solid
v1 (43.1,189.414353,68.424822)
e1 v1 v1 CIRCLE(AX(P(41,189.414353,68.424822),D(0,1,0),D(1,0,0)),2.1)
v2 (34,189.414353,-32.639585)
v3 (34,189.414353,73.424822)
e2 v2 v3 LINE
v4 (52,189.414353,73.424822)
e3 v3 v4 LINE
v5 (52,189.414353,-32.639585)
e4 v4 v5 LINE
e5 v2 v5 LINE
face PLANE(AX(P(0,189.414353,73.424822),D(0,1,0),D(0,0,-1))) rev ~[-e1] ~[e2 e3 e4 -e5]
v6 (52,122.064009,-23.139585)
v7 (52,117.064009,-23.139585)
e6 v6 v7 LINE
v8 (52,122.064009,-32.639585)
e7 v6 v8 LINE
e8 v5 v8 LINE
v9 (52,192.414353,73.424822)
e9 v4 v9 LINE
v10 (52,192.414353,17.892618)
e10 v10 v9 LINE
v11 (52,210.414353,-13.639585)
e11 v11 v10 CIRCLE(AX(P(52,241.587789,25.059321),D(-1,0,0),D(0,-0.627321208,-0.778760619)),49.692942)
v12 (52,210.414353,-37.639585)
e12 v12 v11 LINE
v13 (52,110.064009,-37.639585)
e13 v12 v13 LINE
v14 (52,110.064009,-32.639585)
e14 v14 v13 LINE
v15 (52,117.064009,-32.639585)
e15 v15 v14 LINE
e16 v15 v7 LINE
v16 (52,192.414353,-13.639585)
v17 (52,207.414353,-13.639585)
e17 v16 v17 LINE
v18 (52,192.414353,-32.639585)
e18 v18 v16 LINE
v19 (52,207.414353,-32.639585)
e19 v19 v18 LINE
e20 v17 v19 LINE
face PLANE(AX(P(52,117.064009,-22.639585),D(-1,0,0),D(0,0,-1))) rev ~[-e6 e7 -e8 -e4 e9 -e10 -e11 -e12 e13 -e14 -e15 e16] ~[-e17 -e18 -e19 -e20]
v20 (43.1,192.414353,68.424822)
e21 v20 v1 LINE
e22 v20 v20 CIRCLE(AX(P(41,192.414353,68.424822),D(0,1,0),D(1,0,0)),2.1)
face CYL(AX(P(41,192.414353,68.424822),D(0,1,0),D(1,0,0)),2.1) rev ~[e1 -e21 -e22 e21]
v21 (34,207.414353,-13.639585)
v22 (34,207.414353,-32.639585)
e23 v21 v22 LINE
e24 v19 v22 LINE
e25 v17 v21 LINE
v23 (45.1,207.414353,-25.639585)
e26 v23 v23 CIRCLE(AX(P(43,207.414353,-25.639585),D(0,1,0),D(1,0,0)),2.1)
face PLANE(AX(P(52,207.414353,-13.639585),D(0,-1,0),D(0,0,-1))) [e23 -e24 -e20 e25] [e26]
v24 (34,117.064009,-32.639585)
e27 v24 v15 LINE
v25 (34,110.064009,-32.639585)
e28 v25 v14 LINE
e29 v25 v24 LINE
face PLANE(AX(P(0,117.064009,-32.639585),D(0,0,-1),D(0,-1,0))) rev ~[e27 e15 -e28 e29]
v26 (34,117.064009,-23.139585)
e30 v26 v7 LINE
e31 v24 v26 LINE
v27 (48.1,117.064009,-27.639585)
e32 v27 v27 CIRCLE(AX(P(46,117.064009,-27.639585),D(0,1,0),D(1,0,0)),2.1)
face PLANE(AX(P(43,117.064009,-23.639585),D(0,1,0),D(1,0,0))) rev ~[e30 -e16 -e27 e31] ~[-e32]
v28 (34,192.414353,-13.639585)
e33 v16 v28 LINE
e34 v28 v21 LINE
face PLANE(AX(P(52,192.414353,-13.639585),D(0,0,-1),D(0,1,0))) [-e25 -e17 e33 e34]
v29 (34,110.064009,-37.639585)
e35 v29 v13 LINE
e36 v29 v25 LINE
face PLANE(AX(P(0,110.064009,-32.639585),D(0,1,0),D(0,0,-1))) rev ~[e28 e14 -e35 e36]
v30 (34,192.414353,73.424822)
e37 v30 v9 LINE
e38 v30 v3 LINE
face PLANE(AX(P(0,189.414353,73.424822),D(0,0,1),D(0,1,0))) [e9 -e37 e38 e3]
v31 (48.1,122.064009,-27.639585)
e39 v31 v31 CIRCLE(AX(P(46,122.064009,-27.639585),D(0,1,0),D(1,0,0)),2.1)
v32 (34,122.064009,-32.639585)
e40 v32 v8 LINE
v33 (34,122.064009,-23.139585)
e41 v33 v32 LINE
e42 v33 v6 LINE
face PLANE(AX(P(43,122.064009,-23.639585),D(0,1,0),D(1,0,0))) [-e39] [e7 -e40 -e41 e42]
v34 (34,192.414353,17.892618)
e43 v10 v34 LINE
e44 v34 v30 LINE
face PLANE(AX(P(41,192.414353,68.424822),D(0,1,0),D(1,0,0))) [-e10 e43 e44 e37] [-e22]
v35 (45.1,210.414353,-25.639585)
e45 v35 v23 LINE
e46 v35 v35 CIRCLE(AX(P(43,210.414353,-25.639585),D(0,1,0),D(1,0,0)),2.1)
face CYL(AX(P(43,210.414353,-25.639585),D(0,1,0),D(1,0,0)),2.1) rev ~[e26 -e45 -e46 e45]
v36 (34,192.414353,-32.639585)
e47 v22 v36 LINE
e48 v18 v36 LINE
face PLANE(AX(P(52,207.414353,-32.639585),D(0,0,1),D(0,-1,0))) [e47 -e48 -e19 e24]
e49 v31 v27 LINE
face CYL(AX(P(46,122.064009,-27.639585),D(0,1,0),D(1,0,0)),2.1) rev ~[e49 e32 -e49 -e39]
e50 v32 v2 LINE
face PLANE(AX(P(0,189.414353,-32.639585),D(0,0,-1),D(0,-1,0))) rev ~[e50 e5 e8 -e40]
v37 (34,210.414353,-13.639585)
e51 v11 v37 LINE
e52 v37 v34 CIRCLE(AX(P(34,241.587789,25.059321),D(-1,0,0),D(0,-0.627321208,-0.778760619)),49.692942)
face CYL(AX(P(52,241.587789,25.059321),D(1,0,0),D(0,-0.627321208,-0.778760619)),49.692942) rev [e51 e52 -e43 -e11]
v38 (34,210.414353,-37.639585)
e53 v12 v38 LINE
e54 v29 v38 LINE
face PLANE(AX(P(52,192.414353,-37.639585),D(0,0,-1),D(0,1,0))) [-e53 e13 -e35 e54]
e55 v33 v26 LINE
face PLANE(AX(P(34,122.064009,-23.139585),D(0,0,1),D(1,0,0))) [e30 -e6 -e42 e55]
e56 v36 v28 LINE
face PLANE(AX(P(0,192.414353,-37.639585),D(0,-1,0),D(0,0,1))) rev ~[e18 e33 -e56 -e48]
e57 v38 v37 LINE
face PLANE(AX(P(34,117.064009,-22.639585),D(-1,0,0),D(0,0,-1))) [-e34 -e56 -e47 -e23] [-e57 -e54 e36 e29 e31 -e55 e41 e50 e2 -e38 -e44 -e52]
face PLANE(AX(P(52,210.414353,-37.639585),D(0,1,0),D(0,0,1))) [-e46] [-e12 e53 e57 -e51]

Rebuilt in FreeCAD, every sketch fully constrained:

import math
import FreeCAD as App
import Part
import Sketcher
from FreeCAD import Vector


def add_polygon(sketch, points):
    """Adds a closed chain of lines whose ends are joined by coincident constraints."""
    first, n = sketch.GeometryCount, len(points)
    for a, b in zip(points, points[1:] + points[:1]):
        sketch.addGeometry(Part.LineSegment(App.Vector(*a, 0), App.Vector(*b, 0)), False)
    for i in range(n):
        sketch.addConstraint(Sketcher.Constraint("Coincident", first + i, 2, first + (i + 1) % n, 1))

doc = App.newDocument("Part")
body = doc.addObject("PartDesign::Body", "Body")
body.AllowCompound = True

# Sketch on YZ plane
sketch1 = body.newObject("Sketcher::SketchObject", "Sketch")
sketch1.AttachmentSupport = (doc.getObject("YZ_Plane"), [""])
sketch1.MapMode = "FlatFace"
add_polygon(sketch1, [(192.414353, 73.424822), (189.414353, 73.424822), (189.414353, -32.639585), (122.064009, -32.639585), (122.064009, -22.639585), (117.064009, -22.639585), (117.064009, -32.639585), (110.064009, -32.639585), (110.064009, -37.639585), (192.414353, -37.639585)])  # lines 0-9
sketch1.addConstraint([
    Sketcher.Constraint("Horizontal", 0),
    Sketcher.Constraint("Vertical", 1),
    Sketcher.Constraint("Horizontal", 2),
    Sketcher.Constraint("Vertical", 3),
    Sketcher.Constraint("Horizontal", 4),
    Sketcher.Constraint("Vertical", 5),
    Sketcher.Constraint("Horizontal", 6),
    Sketcher.Constraint("Vertical", 7),
    Sketcher.Constraint("Horizontal", 8),
    Sketcher.Constraint("Vertical", 9),
    Sketcher.Constraint("Horizontal", 2, 2, 5, 2),
    Sketcher.Constraint("Equal", 4, 7),
    Sketcher.Constraint("DistanceX", 0, 2, 0, 1, 3.0),
    Sketcher.Constraint("DistanceX", 4, 2, 4, 1, 5.0),
    Sketcher.Constraint("DistanceX", 6, 2, 6, 1, 7.0),
    Sketcher.Constraint("DistanceY", 3, 1, 3, 2, 10.0),
    Sketcher.Constraint("DistanceX", 2, 2, 2, 1, 67.350344),
    Sketcher.Constraint("DistanceY", 1, 2, 1, 1, 106.064407),
    Sketcher.Constraint("DistanceY", -1, 1, 0, 2, 73.424822),
    Sketcher.Constraint("DistanceX", -1, 1, 2, 2, 122.064009),
])
pad1 = body.newObject("PartDesign::Pad", "Pad")
pad1.Profile = sketch1
pad1.Length = 52

# Sketch on XZ plane
sketch2 = body.newObject("Sketcher::SketchObject", "Sketch001")
sketch2.AttachmentSupport = (doc.getObject("XZ_Plane"), [""])
sketch2.MapMode = "FlatFace"
sketch2.AttachmentOffset = App.Placement(Vector(0, 0, -122.064009), App.Rotation())
sketch2.addGeometry([
    Part.Circle(Vector(6, -27.049585, 0), Vector(0, 0, 1), 2.1),
    Part.Circle(Vector(46, -27.639585, 0), Vector(0, 0, 1), 2.1),
], False)
sketch2.addConstraint([
    Sketcher.Constraint("Equal", 0, 1),
    Sketcher.Constraint("Diameter", 0, 4.2),
    Sketcher.Constraint("DistanceX", -1, 1, 0, 3, 6.0),
    Sketcher.Constraint("DistanceX", -1, 1, 1, 3, 46.0),
    Sketcher.Constraint("DistanceY", 1, 3, 0, 3, 0.59),
    Sketcher.Constraint("DistanceY", 0, 3, -1, 1, 27.049585),
])
pocket1 = body.newObject("PartDesign::Pocket", "Pocket")
pocket1.Profile = sketch2
pocket1.Length = 52
pocket1.Reversed = True

# Sketch on XZ plane
sketch3 = body.newObject("Sketcher::SketchObject", "Sketch002")
sketch3.AttachmentSupport = (doc.getObject("XZ_Plane"), [""])
sketch3.MapMode = "FlatFace"
sketch3.AttachmentOffset = App.Placement(Vector(0, 0, -192.414353), App.Rotation())
sketch3.addGeometry([
    Part.Circle(Vector(41, 68.424822, 0), Vector(0, 0, 1), 2.1),
    Part.Circle(Vector(11, 68.424822, 0), Vector(0, 0, 1), 2.1),
], False)
sketch3.addConstraint([
    Sketcher.Constraint("Equal", 0, 1),
    Sketcher.Constraint("Horizontal", 0, 3, 1, 3),
    Sketcher.Constraint("Diameter", 0, 4.2),
    Sketcher.Constraint("DistanceX", -1, 1, 0, 3, 41.0),
    Sketcher.Constraint("DistanceX", -1, 1, 1, 3, 11.0),
    Sketcher.Constraint("DistanceY", -1, 1, 0, 3, 68.424822),
])
pocket2 = body.newObject("PartDesign::Pocket", "Pocket001")
pocket2.Profile = sketch3
pocket2.Length = 52
pocket2.Reversed = True

# Sketch on XY plane
sketch4 = body.newObject("Sketcher::SketchObject", "Sketch003")
sketch4.AttachmentSupport = (doc.getObject("XY_Plane"), [""])
sketch4.MapMode = "FlatFace"
sketch4.AttachmentOffset = App.Placement(Vector(0, 0, -37.639585), App.Rotation())
add_polygon(sketch4, [(34, 192.414353), (34, 110.064009), (18, 110.064009), (18, 192.414353)])  # lines 0-3
sketch4.addConstraint([
    Sketcher.Constraint("Vertical", 0),
    Sketcher.Constraint("Horizontal", 1),
    Sketcher.Constraint("Vertical", 2),
    Sketcher.Constraint("Horizontal", 3),
    Sketcher.Constraint("DistanceX", 1, 2, 1, 1, 16.0),
    Sketcher.Constraint("DistanceX", -1, 1, 0, 2, 34.0),
    Sketcher.Constraint("DistanceY", 0, 2, 0, 1, 82.350344),
    Sketcher.Constraint("DistanceY", -1, 1, 0, 2, 110.064009),
])
pocket3 = body.newObject("PartDesign::Pocket", "Pocket002")
pocket3.Profile = sketch4
pocket3.Length = 124
pocket3.Reversed = True

# Sketch on YZ plane
sketch5 = body.newObject("Sketcher::SketchObject", "Sketch004")
sketch5.AttachmentSupport = (doc.getObject("YZ_Plane"), [""])
sketch5.MapMode = "FlatFace"
sketch5.addGeometry([
    Part.LineSegment(Vector(210.414353, -37.639585, 0), Vector(192.414353, -37.639585, 0)),  # 0
    Part.LineSegment(Vector(192.414353, -37.639585, 0), Vector(192.414353, -32.639585, 0)),  # 1
    Part.LineSegment(Vector(192.414353, -32.639585, 0), Vector(207.414353, -32.639585, 0)),  # 2
    Part.LineSegment(Vector(207.414353, -32.639585, 0), Vector(207.414353, -13.639585, 0)),  # 3
    Part.LineSegment(Vector(207.414353, -13.639585, 0), Vector(192.414353, -13.639585, 0)),  # 4
    Part.LineSegment(Vector(192.414353, -13.639585, 0), Vector(192.414353, 17.892618, 0)),  # 5
    Part.ArcOfCircle(Part.Circle(Vector(241.587789, 25.059321, 0), Vector(0, 0, 1), 49.692942), math.radians(-171.707902), math.radians(-128.852761)),  # 6
    Part.LineSegment(Vector(210.414353, -13.639585, 0), Vector(210.414353, -37.639585, 0)),  # 7
], False)
sketch5.addConstraint([
    Sketcher.Constraint("Coincident", 0, 2, 1, 1),
    Sketcher.Constraint("Coincident", 1, 2, 2, 1),
    Sketcher.Constraint("Coincident", 2, 2, 3, 1),
    Sketcher.Constraint("Coincident", 3, 2, 4, 1),
    Sketcher.Constraint("Coincident", 4, 2, 5, 1),
    Sketcher.Constraint("Coincident", 5, 2, 6, 1),
    Sketcher.Constraint("Coincident", 6, 2, 7, 1),
    Sketcher.Constraint("Coincident", 7, 2, 0, 1),
    Sketcher.Constraint("Horizontal", 0),
    Sketcher.Constraint("Vertical", 1),
    Sketcher.Constraint("Horizontal", 2),
    Sketcher.Constraint("Vertical", 3),
    Sketcher.Constraint("Horizontal", 4),
    Sketcher.Constraint("Vertical", 5),
    Sketcher.Constraint("Vertical", 7),
    Sketcher.Constraint("Horizontal", 4, 2, 6, 2),
    Sketcher.Constraint("Vertical", 1, 2, 4, 2),
    Sketcher.Constraint("DistanceX", 0, 2, 0, 1, 18.0),
    Sketcher.Constraint("DistanceX", 2, 1, 2, 2, 15.0),
    Sketcher.Constraint("DistanceY", 1, 1, 1, 2, 5.0),
    Sketcher.Constraint("DistanceY", 3, 1, 3, 2, 19.0),
    Sketcher.Constraint("Radius", 6, 49.692942),
    Sketcher.Constraint("DistanceY", 5, 1, 5, 2, 31.532203),
    Sketcher.Constraint("DistanceX", -1, 1, 6, 3, 241.587789),
    Sketcher.Constraint("DistanceY", -1, 1, 6, 3, 25.059321),
])
pad2 = body.newObject("PartDesign::Pad", "Pad001")
pad2.Profile = sketch5
pad2.Length = 18

# Sketch on XZ plane
sketch6 = body.newObject("Sketcher::SketchObject", "Sketch005")
sketch6.AttachmentSupport = (doc.getObject("XZ_Plane"), [""])
sketch6.MapMode = "FlatFace"
sketch6.AttachmentOffset = App.Placement(Vector(0, 0, -210.414353), App.Rotation())
sketch6.addGeometry(Part.Circle(Vector(9, -25.639585, 0), Vector(0, 0, 1), 2.1), False)
sketch6.addConstraint([
    Sketcher.Constraint("Diameter", 0, 4.2),
    Sketcher.Constraint("DistanceX", -1, 1, 0, 3, 9.0),
    Sketcher.Constraint("DistanceY", 0, 3, -1, 1, 25.639585),
])
pocket4 = body.newObject("PartDesign::Pocket", "Pocket003")
pocket4.Profile = sketch6
pocket4.Length = 6
pocket4.Reversed = True

# Sketch on YZ plane
sketch7 = body.newObject("Sketcher::SketchObject", "Sketch006")
sketch7.AttachmentSupport = (doc.getObject("YZ_Plane"), [""])
sketch7.MapMode = "FlatFace"
sketch7.AttachmentOffset = App.Placement(Vector(0, 0, 52), App.Rotation())
sketch7.addGeometry([
    Part.LineSegment(Vector(192.414353, -32.639585, 0), Vector(192.414353, -37.639585, 0)),  # 0
    Part.LineSegment(Vector(192.414353, -37.639585, 0), Vector(210.414353, -37.639585, 0)),  # 1
    Part.LineSegment(Vector(210.414353, -37.639585, 0), Vector(210.414353, -13.639585, 0)),  # 2
    Part.ArcOfCircle(Part.Circle(Vector(241.587789, 25.059321, 0), Vector(0, 0, 1), 49.692942), math.radians(-171.707902), math.radians(-128.852761)),  # 3
    Part.LineSegment(Vector(192.414353, 17.892618, 0), Vector(192.414353, -13.639585, 0)),  # 4
    Part.LineSegment(Vector(192.414353, -13.639585, 0), Vector(207.414353, -13.639585, 0)),  # 5
    Part.LineSegment(Vector(207.414353, -13.639585, 0), Vector(207.414353, -32.639585, 0)),  # 6
    Part.LineSegment(Vector(207.414353, -32.639585, 0), Vector(192.414353, -32.639585, 0)),  # 7
], False)
sketch7.addConstraint([
    Sketcher.Constraint("Coincident", 0, 2, 1, 1),
    Sketcher.Constraint("Coincident", 1, 2, 2, 1),
    Sketcher.Constraint("Coincident", 2, 2, 3, 2),
    Sketcher.Constraint("Coincident", 3, 1, 4, 1),
    Sketcher.Constraint("Coincident", 4, 2, 5, 1),
    Sketcher.Constraint("Coincident", 5, 2, 6, 1),
    Sketcher.Constraint("Coincident", 6, 2, 7, 1),
    Sketcher.Constraint("Coincident", 7, 2, 0, 1),
    Sketcher.Constraint("Vertical", 0),
    Sketcher.Constraint("Horizontal", 1),
    Sketcher.Constraint("Vertical", 2),
    Sketcher.Constraint("Vertical", 4),
    Sketcher.Constraint("Horizontal", 5),
    Sketcher.Constraint("Vertical", 6),
    Sketcher.Constraint("Horizontal", 7),
    Sketcher.Constraint("Horizontal", 2, 2, 4, 2),
    Sketcher.Constraint("Vertical", 0, 2, 3, 1),
    Sketcher.Constraint("DistanceX", 1, 1, 1, 2, 18.0),
    Sketcher.Constraint("DistanceX", 5, 1, 5, 2, 15.0),
    Sketcher.Constraint("DistanceY", 0, 2, 0, 1, 5.0),
    Sketcher.Constraint("DistanceY", 2, 1, 2, 2, 24.0),
    Sketcher.Constraint("Radius", 3, 49.692942),
    Sketcher.Constraint("DistanceY", 4, 2, 4, 1, 31.532203),
    Sketcher.Constraint("DistanceX", -1, 1, 3, 3, 241.587789),
    Sketcher.Constraint("DistanceY", -1, 1, 3, 3, 25.059321),
])
pad3 = body.newObject("PartDesign::Pad", "Pad002")
pad3.Profile = sketch7
pad3.Length = 18
pad3.Reversed = True

# Sketch on XZ plane
sketch8 = body.newObject("Sketcher::SketchObject", "Sketch007")
sketch8.AttachmentSupport = (doc.getObject("XZ_Plane"), [""])
sketch8.MapMode = "FlatFace"
sketch8.AttachmentOffset = App.Placement(Vector(0, 0, -210.414353), App.Rotation())
sketch8.addGeometry(Part.Circle(Vector(43, -25.639585, 0), Vector(0, 0, 1), 2.1), False)
sketch8.addConstraint([
    Sketcher.Constraint("Diameter", 0, 4.2),
    Sketcher.Constraint("DistanceX", -1, 1, 0, 3, 43.0),
    Sketcher.Constraint("DistanceY", 0, 3, -1, 1, 25.639585),
])
pocket5 = body.newObject("PartDesign::Pocket", "Pocket004")
pocket5.Profile = sketch8
pocket5.Length = 11
pocket5.Reversed = True

# Sketch on XZ plane
sketch9 = body.newObject("Sketcher::SketchObject", "Sketch008")
sketch9.AttachmentSupport = (doc.getObject("XZ_Plane"), [""])
sketch9.MapMode = "FlatFace"
sketch9.AttachmentOffset = App.Placement(Vector(0, 0, -210.414353), App.Rotation())
add_polygon(sketch9, [(-6.236275, -41.730205), (-6.236275, 77.080375), (24.522652, 77.080375), (24.522652, -41.730205)])  # lines 0-3
sketch9.addConstraint([
    Sketcher.Constraint("Vertical", 0),
    Sketcher.Constraint("Horizontal", 1),
    Sketcher.Constraint("Vertical", 2),
    Sketcher.Constraint("Horizontal", 3),
    Sketcher.Constraint("DistanceY", 0, 1, 0, 2, 118.81058),
    Sketcher.Constraint("DistanceX", 1, 1, 1, 2, 30.758927),
    Sketcher.Constraint("DistanceX", -1, 1, 1, 2, 24.522652),
    Sketcher.Constraint("DistanceY", -1, 1, 0, 2, 77.080375),
])
pocket6 = body.newObject("PartDesign::Pocket", "Pocket005")
pocket6.Profile = sketch9
pocket6.Length = 134
pocket6.Reversed = True

# Sketch on XZ plane
sketch10 = body.newObject("Sketcher::SketchObject", "Sketch009")
sketch10.AttachmentSupport = (doc.getObject("XZ_Plane"), [""])
sketch10.MapMode = "FlatFace"
sketch10.AttachmentOffset = App.Placement(Vector(0, 0, -122.064009), App.Rotation())
add_polygon(sketch10, [(34, -24.639585), (34, -22.639585), (52, -22.639585), (52, -24.639585)])  # lines 0-3
sketch10.addConstraint([
    Sketcher.Constraint("Vertical", 0),
    Sketcher.Constraint("Horizontal", 1),
    Sketcher.Constraint("Vertical", 2),
    Sketcher.Constraint("Horizontal", 3),
    Sketcher.Constraint("DistanceX", 1, 1, 1, 2, 18.0),
    Sketcher.Constraint("DistanceY", 0, 1, 0, 2, 2.0),
    Sketcher.Constraint("DistanceX", -1, 1, 0, 2, 34.0),
    Sketcher.Constraint("DistanceY", 0, 2, -1, 1, 22.639585),
])
pocket7 = body.newObject("PartDesign::Pocket", "Pocket006")
pocket7.Profile = sketch10
pocket7.Length = 10
pocket7.Reversed = True

# Sketch on XZ plane
sketch11 = body.newObject("Sketcher::SketchObject", "Sketch010")
sketch11.AttachmentSupport = (doc.getObject("XZ_Plane"), [""])
sketch11.MapMode = "FlatFace"
sketch11.AttachmentOffset = App.Placement(Vector(0, 0, -117.064009), App.Rotation())
add_polygon(sketch11, [(34, -24.639585), (34, -22.639585), (52, -22.639585), (52, -24.639585)])  # lines 0-3
sketch11.addGeometry(Part.Circle(Vector(46, -27.639585, 0), Vector(0, 0, 1), 2.1), False)  # 4
sketch11.addConstraint([
    Sketcher.Constraint("Vertical", 0),
    Sketcher.Constraint("Horizontal", 1),
    Sketcher.Constraint("Vertical", 2),
    Sketcher.Constraint("Horizontal", 3),
    Sketcher.Constraint("Diameter", 4, 4.2),
    Sketcher.Constraint("DistanceX", 1, 1, 1, 2, 18.0),
    Sketcher.Constraint("DistanceY", 0, 1, 0, 2, 2.0),
    Sketcher.Constraint("DistanceX", -1, 1, 4, 3, 46.0),
    Sketcher.Constraint("DistanceX", -1, 1, 0, 2, 34.0),
    Sketcher.Constraint("DistanceY", 4, 3, 0, 2, 5.0),
    Sketcher.Constraint("DistanceY", 4, 3, -1, 1, 27.639585),
])
pad4 = body.newObject("PartDesign::Pad", "Pad003")
pad4.Profile = sketch11
pad4.Length = 5
pad4.Reversed = True

# Sketch on XZ plane
sketch12 = body.newObject("Sketcher::SketchObject", "Sketch011")
sketch12.AttachmentSupport = (doc.getObject("XZ_Plane"), [""])
sketch12.MapMode = "FlatFace"
sketch12.AttachmentOffset = App.Placement(Vector(0, 0, -122.064009), App.Rotation())
sketch12.addGeometry(Part.Circle(Vector(46, -27.639585, 0), Vector(0, 0, 1), 2.1), False)
sketch12.addConstraint([
    Sketcher.Constraint("Diameter", 0, 4.2),
    Sketcher.Constraint("DistanceX", -1, 1, 0, 3, 46.0),
    Sketcher.Constraint("DistanceY", 0, 3, -1, 1, 27.639585),
])
pocket8 = body.newObject("PartDesign::Pocket", "Pocket007")
pocket8.Profile = sketch12
pocket8.Length = 68
pocket8.Reversed = True

# Sketch on XZ plane
sketch13 = body.newObject("Sketcher::SketchObject", "Sketch012")
sketch13.AttachmentSupport = (doc.getObject("XZ_Plane"), [""])
sketch13.MapMode = "FlatFace"
sketch13.AttachmentOffset = App.Placement(Vector(0, 0, -192.414353), App.Rotation())
sketch13.addGeometry(Part.Circle(Vector(41, 68.424822, 0), Vector(0, 0, 1), 2.1), False)
sketch13.addConstraint([
    Sketcher.Constraint("Diameter", 0, 4.2),
    Sketcher.Constraint("DistanceX", -1, 1, 0, 3, 41.0),
    Sketcher.Constraint("DistanceY", -1, 1, 0, 3, 68.424822),
])
pad5 = body.newObject("PartDesign::Pad", "Pad004")
pad5.Profile = sketch13
pad5.Length = 3

# Sketch on XZ plane
sketch14 = body.newObject("Sketcher::SketchObject", "Sketch013")
sketch14.AttachmentSupport = (doc.getObject("XZ_Plane"), [""])
sketch14.MapMode = "FlatFace"
sketch14.AttachmentOffset = App.Placement(Vector(0, 0, -192.414353), App.Rotation())
sketch14.addGeometry(Part.Circle(Vector(41, 68.424822, 0), Vector(0, 0, 1), 2.1), False)
sketch14.addConstraint([
    Sketcher.Constraint("Diameter", 0, 4.2),
    Sketcher.Constraint("DistanceX", -1, 1, 0, 3, 41.0),
    Sketcher.Constraint("DistanceY", -1, 1, 0, 3, 68.424822),
])
pocket9 = body.newObject("PartDesign::Pocket", "Pocket008")
pocket9.Profile = sketch14
pocket9.Length = 68
pocket9.Reversed = True

# Sketch on XZ plane
sketch15 = body.newObject("Sketcher::SketchObject", "Sketch014")
sketch15.AttachmentSupport = (doc.getObject("XZ_Plane"), [""])
sketch15.MapMode = "FlatFace"
sketch15.AttachmentOffset = App.Placement(Vector(0, 0, -122.064009), App.Rotation())
add_polygon(sketch15, [(34, -23.139585), (34, -22.639585), (52, -22.639585), (52, -23.139585)])  # lines 0-3
sketch15.addConstraint([
    Sketcher.Constraint("Vertical", 0),
    Sketcher.Constraint("Horizontal", 1),
    Sketcher.Constraint("Vertical", 2),
    Sketcher.Constraint("Horizontal", 3),
    Sketcher.Constraint("DistanceX", 1, 1, 1, 2, 18.0),
    Sketcher.Constraint("DistanceY", 0, 1, 0, 2, 0.5),
    Sketcher.Constraint("DistanceX", -1, 1, 0, 2, 34.0),
    Sketcher.Constraint("DistanceY", 0, 2, -1, 1, 22.639585),
])
pocket10 = body.newObject("PartDesign::Pocket", "Pocket009")
pocket10.Profile = sketch15
pocket10.Length = 68
pocket10.Reversed = True

# Sketch on XZ plane
sketch16 = body.newObject("Sketcher::SketchObject", "Sketch015")
sketch16.AttachmentSupport = (doc.getObject("XZ_Plane"), [""])
sketch16.MapMode = "FlatFace"
sketch16.AttachmentOffset = App.Placement(Vector(0, 0, -122.064009), App.Rotation())
add_polygon(sketch16, [(41.98757, -32.865938), (41.98757, -24.865938), (49.874976, -24.865938), (49.874976, -32.865938)])  # lines 0-3
sketch16.addConstraint([
    Sketcher.Constraint("Vertical", 0),
    Sketcher.Constraint("Horizontal", 1),
    Sketcher.Constraint("Vertical", 2),
    Sketcher.Constraint("Horizontal", 3),
    Sketcher.Constraint("DistanceY", 0, 1, 0, 2, 8.0),
    Sketcher.Constraint("DistanceX", 1, 1, 1, 2, 7.887406),
    Sketcher.Constraint("DistanceX", -1, 1, 0, 2, 41.98757),
    Sketcher.Constraint("DistanceY", 0, 2, -1, 1, 24.865938),
])
pad6 = body.newObject("PartDesign::Pad", "Pad005")
pad6.Profile = sketch16
pad6.Length = 5

# Sketch on XZ plane
sketch17 = body.newObject("Sketcher::SketchObject", "Sketch016")
sketch17.AttachmentSupport = (doc.getObject("XZ_Plane"), [""])
sketch17.MapMode = "FlatFace"
sketch17.AttachmentOffset = App.Placement(Vector(0, 0, -122.064009), App.Rotation())
sketch17.addGeometry(Part.Circle(Vector(46, -27.639585, 0), Vector(0, 0, 1), 2.1), False)
sketch17.addConstraint([
    Sketcher.Constraint("Diameter", 0, 4.2),
    Sketcher.Constraint("DistanceX", -1, 1, 0, 3, 46.0),
    Sketcher.Constraint("DistanceY", 0, 3, -1, 1, 27.639585),
])
pocket11 = body.newObject("PartDesign::Pocket", "Pocket010")
pocket11.Profile = sketch17
pocket11.Length = 10
pocket11.Reversed = True

doc.recompute()
